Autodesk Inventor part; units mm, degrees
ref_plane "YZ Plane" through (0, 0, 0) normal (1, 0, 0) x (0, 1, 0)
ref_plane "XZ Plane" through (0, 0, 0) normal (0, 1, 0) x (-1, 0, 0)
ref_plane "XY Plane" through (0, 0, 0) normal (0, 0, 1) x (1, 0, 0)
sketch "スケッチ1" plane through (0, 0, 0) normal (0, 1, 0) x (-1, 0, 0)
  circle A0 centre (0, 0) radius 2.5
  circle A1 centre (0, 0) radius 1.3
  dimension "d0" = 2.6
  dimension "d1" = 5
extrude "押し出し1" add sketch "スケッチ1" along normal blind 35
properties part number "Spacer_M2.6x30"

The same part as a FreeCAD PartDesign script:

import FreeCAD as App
import Part
import Sketcher

V = App.Vector

doc = App.newDocument("Part")
params = doc.addObject("Spreadsheet::Sheet", "Params")
for row, (alias, value) in enumerate([
    ("sketch1_diameter", "5 mm"),
    ("sketch1_diameter2", "2.6 mm"),
    ("pad1_length", "35 mm"),
], start=1):
    params.set(f"A{row}", alias)
    params.set(f"B{row}", "=" + value)
    params.setAlias(f"B{row}", alias)

body = doc.addObject("PartDesign::Body", "Body")

# Sketch on XZ plane
sketch1 = body.newObject("Sketcher::SketchObject", "Sketch")
sketch1.AttachmentSupport = (doc.getObject("XZ_Plane"), [""])
sketch1.MapMode = "FlatFace"
sketch1.addGeometry([
    Part.Circle(V(0, 0, 0), V(0, 0, 1), 2.5),
    Part.Circle(V(0, 0, 0), V(0, 0, 1), 1.3),
], False)
sketch1.addConstraint([
    Sketcher.Constraint("Coincident", 0, 3, -1, 1),
    Sketcher.Constraint("Coincident", 1, 3, -1, 1),
    Sketcher.Constraint("Diameter", 0, 5.0),
    Sketcher.Constraint("Diameter", 1, 2.6),
])
sketch1.setExpression("Constraints[2]", "Params.sketch1_diameter")
sketch1.setExpression("Constraints[3]", "Params.sketch1_diameter2")
pad1 = body.newObject("PartDesign::Pad", "Pad")
pad1.Profile = sketch1
pad1.setExpression("Length", "Params.pad1_length")
pad1.Reversed = True

doc.recompute()
